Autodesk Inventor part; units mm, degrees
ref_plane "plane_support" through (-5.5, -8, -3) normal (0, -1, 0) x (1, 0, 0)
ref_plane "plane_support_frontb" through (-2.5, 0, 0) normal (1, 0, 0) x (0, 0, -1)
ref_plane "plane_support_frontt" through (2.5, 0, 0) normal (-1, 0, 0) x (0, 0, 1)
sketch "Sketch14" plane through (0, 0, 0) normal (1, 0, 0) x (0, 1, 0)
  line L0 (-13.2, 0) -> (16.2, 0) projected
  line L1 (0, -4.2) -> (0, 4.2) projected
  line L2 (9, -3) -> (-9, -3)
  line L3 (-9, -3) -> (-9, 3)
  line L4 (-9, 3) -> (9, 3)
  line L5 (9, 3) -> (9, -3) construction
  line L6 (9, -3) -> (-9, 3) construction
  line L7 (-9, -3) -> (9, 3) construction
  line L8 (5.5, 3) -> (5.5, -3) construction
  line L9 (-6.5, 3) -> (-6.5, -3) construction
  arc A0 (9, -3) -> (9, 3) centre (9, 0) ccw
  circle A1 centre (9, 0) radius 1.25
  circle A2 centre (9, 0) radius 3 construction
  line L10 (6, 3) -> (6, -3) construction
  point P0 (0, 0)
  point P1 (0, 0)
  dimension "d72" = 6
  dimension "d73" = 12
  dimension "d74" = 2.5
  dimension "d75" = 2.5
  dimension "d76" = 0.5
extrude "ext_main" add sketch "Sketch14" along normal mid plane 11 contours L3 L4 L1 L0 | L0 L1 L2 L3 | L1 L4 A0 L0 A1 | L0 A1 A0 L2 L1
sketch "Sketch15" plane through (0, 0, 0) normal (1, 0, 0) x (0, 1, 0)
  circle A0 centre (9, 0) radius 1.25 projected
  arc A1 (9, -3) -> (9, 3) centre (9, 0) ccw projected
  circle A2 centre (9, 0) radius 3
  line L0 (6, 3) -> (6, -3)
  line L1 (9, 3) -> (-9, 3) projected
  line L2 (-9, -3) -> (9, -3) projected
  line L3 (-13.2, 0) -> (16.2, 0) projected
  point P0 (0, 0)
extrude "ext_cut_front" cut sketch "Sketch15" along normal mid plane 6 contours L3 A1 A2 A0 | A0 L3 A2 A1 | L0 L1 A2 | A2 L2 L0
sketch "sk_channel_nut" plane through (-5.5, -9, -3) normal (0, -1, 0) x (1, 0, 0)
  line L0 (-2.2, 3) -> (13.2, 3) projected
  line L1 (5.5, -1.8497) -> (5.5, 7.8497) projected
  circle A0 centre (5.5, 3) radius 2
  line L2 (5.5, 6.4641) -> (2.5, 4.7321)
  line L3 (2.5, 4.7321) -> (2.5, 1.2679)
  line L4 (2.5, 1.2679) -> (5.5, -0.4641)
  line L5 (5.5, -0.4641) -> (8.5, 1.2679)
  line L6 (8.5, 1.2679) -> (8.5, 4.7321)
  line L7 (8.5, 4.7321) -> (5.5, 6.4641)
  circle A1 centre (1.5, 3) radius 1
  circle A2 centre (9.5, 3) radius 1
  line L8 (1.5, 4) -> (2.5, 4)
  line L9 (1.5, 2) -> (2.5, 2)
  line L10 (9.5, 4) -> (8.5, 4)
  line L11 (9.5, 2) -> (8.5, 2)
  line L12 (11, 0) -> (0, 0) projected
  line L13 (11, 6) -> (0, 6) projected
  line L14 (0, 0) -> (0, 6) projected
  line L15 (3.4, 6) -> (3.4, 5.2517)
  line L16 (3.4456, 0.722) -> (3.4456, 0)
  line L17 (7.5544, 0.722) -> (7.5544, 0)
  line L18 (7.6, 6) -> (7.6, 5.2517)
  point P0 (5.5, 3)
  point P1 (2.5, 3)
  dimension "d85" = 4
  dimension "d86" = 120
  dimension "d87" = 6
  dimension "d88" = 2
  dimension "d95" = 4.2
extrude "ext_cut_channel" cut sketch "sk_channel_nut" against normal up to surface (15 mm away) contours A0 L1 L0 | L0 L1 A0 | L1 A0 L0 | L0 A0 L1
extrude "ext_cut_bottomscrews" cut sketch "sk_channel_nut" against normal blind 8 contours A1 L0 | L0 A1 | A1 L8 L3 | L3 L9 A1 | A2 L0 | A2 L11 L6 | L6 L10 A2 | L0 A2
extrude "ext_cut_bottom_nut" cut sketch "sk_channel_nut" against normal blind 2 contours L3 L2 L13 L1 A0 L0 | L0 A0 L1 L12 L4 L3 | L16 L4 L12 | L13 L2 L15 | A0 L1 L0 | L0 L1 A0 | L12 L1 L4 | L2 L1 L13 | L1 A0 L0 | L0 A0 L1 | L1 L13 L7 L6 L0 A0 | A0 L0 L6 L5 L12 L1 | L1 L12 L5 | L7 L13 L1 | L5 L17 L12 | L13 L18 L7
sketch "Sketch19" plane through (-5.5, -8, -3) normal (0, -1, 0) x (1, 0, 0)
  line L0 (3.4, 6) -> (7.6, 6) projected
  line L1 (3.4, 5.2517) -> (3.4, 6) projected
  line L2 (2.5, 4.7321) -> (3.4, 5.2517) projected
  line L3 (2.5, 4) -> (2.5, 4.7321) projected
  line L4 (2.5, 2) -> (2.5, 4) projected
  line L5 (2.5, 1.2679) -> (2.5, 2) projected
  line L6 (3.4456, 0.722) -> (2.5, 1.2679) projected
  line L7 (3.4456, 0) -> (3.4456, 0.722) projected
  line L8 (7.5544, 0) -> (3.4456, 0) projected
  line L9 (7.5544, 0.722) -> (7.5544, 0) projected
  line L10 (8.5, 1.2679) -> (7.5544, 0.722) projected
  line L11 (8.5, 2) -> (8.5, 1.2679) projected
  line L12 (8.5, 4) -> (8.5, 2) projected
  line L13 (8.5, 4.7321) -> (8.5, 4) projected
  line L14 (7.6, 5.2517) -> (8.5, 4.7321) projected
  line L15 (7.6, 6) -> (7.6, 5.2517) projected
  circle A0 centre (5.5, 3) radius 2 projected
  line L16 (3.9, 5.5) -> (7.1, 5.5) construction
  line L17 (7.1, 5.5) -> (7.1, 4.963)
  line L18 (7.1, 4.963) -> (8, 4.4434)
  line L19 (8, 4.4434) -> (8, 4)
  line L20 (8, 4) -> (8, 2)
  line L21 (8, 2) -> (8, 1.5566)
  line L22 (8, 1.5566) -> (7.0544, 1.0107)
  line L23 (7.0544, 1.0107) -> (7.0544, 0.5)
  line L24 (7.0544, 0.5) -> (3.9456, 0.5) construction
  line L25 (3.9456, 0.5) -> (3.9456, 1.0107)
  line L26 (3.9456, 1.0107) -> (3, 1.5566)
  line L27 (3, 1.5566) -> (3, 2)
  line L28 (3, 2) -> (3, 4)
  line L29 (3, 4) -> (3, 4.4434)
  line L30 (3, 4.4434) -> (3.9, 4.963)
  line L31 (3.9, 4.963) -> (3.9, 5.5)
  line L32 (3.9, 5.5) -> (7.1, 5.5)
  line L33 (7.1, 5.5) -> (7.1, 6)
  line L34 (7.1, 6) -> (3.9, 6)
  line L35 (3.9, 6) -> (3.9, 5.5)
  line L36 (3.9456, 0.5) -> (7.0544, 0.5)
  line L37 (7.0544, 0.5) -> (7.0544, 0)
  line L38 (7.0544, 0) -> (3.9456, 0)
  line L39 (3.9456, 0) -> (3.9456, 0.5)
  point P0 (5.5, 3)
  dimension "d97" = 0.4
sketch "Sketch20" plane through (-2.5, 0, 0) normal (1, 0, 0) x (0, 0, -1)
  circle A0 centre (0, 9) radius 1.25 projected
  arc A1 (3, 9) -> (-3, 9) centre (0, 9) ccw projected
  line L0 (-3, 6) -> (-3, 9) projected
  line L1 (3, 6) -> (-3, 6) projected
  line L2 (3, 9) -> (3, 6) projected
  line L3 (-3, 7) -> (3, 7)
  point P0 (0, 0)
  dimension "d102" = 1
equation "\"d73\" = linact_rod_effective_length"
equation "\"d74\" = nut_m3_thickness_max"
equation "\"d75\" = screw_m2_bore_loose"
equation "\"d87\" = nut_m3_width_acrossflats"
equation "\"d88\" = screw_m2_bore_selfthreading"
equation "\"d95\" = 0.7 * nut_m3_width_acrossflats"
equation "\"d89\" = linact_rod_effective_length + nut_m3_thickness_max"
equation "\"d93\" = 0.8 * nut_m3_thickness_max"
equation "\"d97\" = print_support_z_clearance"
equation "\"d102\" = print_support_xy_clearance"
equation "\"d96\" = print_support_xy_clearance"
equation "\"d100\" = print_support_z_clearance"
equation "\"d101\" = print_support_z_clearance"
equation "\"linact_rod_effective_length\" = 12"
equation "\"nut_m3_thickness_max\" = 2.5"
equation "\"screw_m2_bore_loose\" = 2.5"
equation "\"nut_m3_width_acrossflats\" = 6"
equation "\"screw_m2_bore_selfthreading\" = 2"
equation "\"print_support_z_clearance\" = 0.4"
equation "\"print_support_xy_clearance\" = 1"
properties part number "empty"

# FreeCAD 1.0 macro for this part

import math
import FreeCAD as App
import Part
import Sketcher
Q = App.Units.Quantity


def add_polygon(sketch, points):
    """Adds a closed chain of lines whose ends are joined by coincident constraints."""
    first, n = sketch.GeometryCount, len(points)
    for a, b in zip(points, points[1:] + points[:1]):
        sketch.addGeometry(Part.LineSegment(App.Vector(*a, 0), App.Vector(*b, 0)), False)
    for i in range(n):
        sketch.addConstraint(Sketcher.Constraint("Coincident", first + i, 2, first + (i + 1) % n, 1))

doc = App.newDocument("Part")
body = doc.addObject("PartDesign::Body", "Body")

# Sketch on YZ plane
sketch1 = doc.addObject("Sketcher::SketchObject", "Sketch")
body.addObject(sketch1)
sketch1.AttachmentSupport = (doc.YZ_Plane, [""])
sketch1.MapMode = "FlatFace"
sketch1.addGeometry(Part.LineSegment(App.Vector(-9, 3, 0), App.Vector(-9, -3, 0)), False)
sketch1.addGeometry(Part.LineSegment(App.Vector(-9, -3, 0), App.Vector(9, -3, 0)), False)
sketch1.addGeometry(Part.ArcOfCircle(Part.Circle(App.Vector(9, 0, 0), App.Vector(0, 0, 1), 3), math.radians(-90), math.radians(90)), False)
sketch1.addGeometry(Part.LineSegment(App.Vector(9, 3, 0), App.Vector(-9, 3, 0)), False)
sketch1.addGeometry(Part.Circle(App.Vector(9, 0, 0), App.Vector(0, 0, 1), 1.2), False)
sketch1.addConstraint(Sketcher.Constraint("Coincident", 0, 2, 1, 1))
sketch1.addConstraint(Sketcher.Constraint("Tangent", 1, 2, 2, 1))
sketch1.addConstraint(Sketcher.Constraint("Tangent", 2, 2, 3, 1))
sketch1.addConstraint(Sketcher.Constraint("Coincident", 3, 2, 0, 1))
sketch1.addConstraint(Sketcher.Constraint("Vertical", 0))
sketch1.addConstraint(Sketcher.Constraint("Horizontal", 1))
sketch1.addConstraint(Sketcher.Constraint("Horizontal", 3))
sketch1.addConstraint(Sketcher.Constraint("Coincident", 4, 3, 2, 3))
sketch1.addConstraint(Sketcher.Constraint("Symmetric", 0, 2, 2, 2, -1, 1))
sketch1.addConstraint(Sketcher.Constraint("Radius", 2, 3.0))
sketch1.addConstraint(Sketcher.Constraint("Diameter", 4, 2.5))
sketch1.addConstraint(Sketcher.Constraint("DistanceX", 1, 1, 1, 2, 18.0))
pad1 = doc.addObject("PartDesign::Pad", "Pad")
body.addObject(pad1)
pad1.Profile = sketch1
pad1.Length = 11
pad1.Midplane = True

# Sketch on YZ plane
sketch2 = doc.addObject("Sketcher::SketchObject", "Sketch001")
body.addObject(sketch2)
sketch2.AttachmentSupport = (doc.YZ_Plane, [""])
sketch2.MapMode = "FlatFace"
sketch2.addGeometry(Part.ArcOfCircle(Part.Circle(App.Vector(9, 0, 0), App.Vector(0, 0, 1), 3), math.radians(-90), math.radians(90)), False)
sketch2.addGeometry(Part.LineSegment(App.Vector(9, 3, 0), App.Vector(6, 3, 0)), False)
sketch2.addGeometry(Part.LineSegment(App.Vector(6, 3, 0), App.Vector(6, -3, 0)), False)
sketch2.addGeometry(Part.LineSegment(App.Vector(6, -3, 0), App.Vector(9, -3, 0)), False)
sketch2.addGeometry(Part.Circle(App.Vector(9, 0, 0), App.Vector(0, 0, 1), 1.2), False)
sketch2.addConstraint(Sketcher.Constraint("Tangent", 0, 2, 1, 1))
sketch2.addConstraint(Sketcher.Constraint("Coincident", 1, 2, 2, 1))
sketch2.addConstraint(Sketcher.Constraint("Coincident", 2, 2, 3, 1))
sketch2.addConstraint(Sketcher.Constraint("Tangent", 3, 2, 0, 1))
sketch2.addConstraint(Sketcher.Constraint("Horizontal", 1))
sketch2.addConstraint(Sketcher.Constraint("Vertical", 2))
sketch2.addConstraint(Sketcher.Constraint("Horizontal", 3))
sketch2.addConstraint(Sketcher.Constraint("Coincident", 4, 3, 0, 3))
sketch2.addConstraint(Sketcher.Constraint("PointOnObject", 0, 3, -1))
sketch2.addConstraint(Sketcher.Constraint("Radius", 0, 3.0))
sketch2.addConstraint(Sketcher.Constraint("Diameter", 4, 2.5))
sketch2.addConstraint(Sketcher.Constraint("DistanceX", 1, 2, 1, 1, 3.0))
sketch2.addConstraint(Sketcher.Constraint("DistanceX", -1, 1, 0, 3, 9.0))
pocket1 = doc.addObject("PartDesign::Pocket", "Pocket")
body.addObject(pocket1)
pocket1.Profile = sketch2
pocket1.Length = 6
pocket1.Midplane = True

# Sketch on XZ plane
sketch3 = doc.addObject("Sketcher::SketchObject", "Sketch002")
body.addObject(sketch3)
sketch3.AttachmentSupport = (doc.XZ_Plane, [""])
sketch3.MapMode = "FlatFace"
sketch3.AttachmentOffset = App.Placement(App.Vector(0, 0, 9), App.Rotation())
sketch3.addGeometry(Part.Circle(App.Vector(0, 0, 0), App.Vector(0, 0, 1), 2), False)
sketch3.addConstraint(Sketcher.Constraint("Coincident", 0, 3, -1, 1))
sketch3.addConstraint(Sketcher.Constraint("Diameter", 0, 4.0))
pocket2 = doc.addObject("PartDesign::Pocket", "Pocket001")
body.addObject(pocket2)
pocket2.Profile = sketch3
pocket2.Length = 15

# Sketch on XZ plane
sketch4 = doc.addObject("Sketcher::SketchObject", "Sketch003")
body.addObject(sketch4)
sketch4.AttachmentSupport = (doc.XZ_Plane, [""])
sketch4.MapMode = "FlatFace"
sketch4.AttachmentOffset = App.Placement(App.Vector(0, 0, 9), App.Rotation())
sketch4.addGeometry(Part.ArcOfCircle(Part.Circle(App.Vector(-4, 0, 0), App.Vector(0, 0, 1), 1), math.radians(90), math.radians(270)), False)
sketch4.addGeometry(Part.LineSegment(App.Vector(-4, -1, 0), App.Vector(-3, -1, 0)), False)
sketch4.addGeometry(Part.LineSegment(App.Vector(-3, -1, 0), App.Vector(-3, 1, 0)), False)
sketch4.addGeometry(Part.LineSegment(App.Vector(-3, 1, 0), App.Vector(-4, 1, 0)), False)
sketch4.addGeometry(Part.LineSegment(App.Vector(4, 1, 0), App.Vector(3, 1, 0)), False)
sketch4.addGeometry(Part.LineSegment(App.Vector(3, 1, 0), App.Vector(3, -1, 0)), False)
sketch4.addGeometry(Part.LineSegment(App.Vector(3, -1, 0), App.Vector(4, -1, 0)), False)
sketch4.addGeometry(Part.ArcOfCircle(Part.Circle(App.Vector(4, 0, 0), App.Vector(0, 0, 1), 1), math.radians(-90), math.radians(90)), False)
sketch4.addConstraint(Sketcher.Constraint("Tangent", 0, 2, 1, 1))
sketch4.addConstraint(Sketcher.Constraint("Coincident", 1, 2, 2, 1))
sketch4.addConstraint(Sketcher.Constraint("Coincident", 2, 2, 3, 1))
sketch4.addConstraint(Sketcher.Constraint("Tangent", 3, 2, 0, 1))
sketch4.addConstraint(Sketcher.Constraint("Coincident", 4, 2, 5, 1))
sketch4.addConstraint(Sketcher.Constraint("Coincident", 5, 2, 6, 1))
sketch4.addConstraint(Sketcher.Constraint("Tangent", 6, 2, 7, 1))
sketch4.addConstraint(Sketcher.Constraint("Tangent", 7, 2, 4, 1))
sketch4.addConstraint(Sketcher.Constraint("Horizontal", 1))
sketch4.addConstraint(Sketcher.Constraint("Vertical", 2))
sketch4.addConstraint(Sketcher.Constraint("Horizontal", 3))
sketch4.addConstraint(Sketcher.Constraint("Horizontal", 4))
sketch4.addConstraint(Sketcher.Constraint("Vertical", 5))
sketch4.addConstraint(Sketcher.Constraint("Horizontal", 6))
sketch4.addConstraint(Sketcher.Constraint("Equal", 0, 7))
sketch4.addConstraint(Sketcher.Constraint("Symmetric", 0, 3, 7, 3, -1, 1))
sketch4.addConstraint(Sketcher.Constraint("Symmetric", 2, 2, 4, 2, -2))
sketch4.addConstraint(Sketcher.Constraint("Radius", 0, 1.0))
sketch4.addConstraint(Sketcher.Constraint("DistanceX", 0, 3, -1, 1, 4.0))
sketch4.addConstraint(Sketcher.Constraint("DistanceX", 2, 2, 4, 2, 6.0))
pocket3 = doc.addObject("PartDesign::Pocket", "Pocket002")
body.addObject(pocket3)
pocket3.Profile = sketch4
pocket3.Length = 8

# Sketch on XZ plane
sketch5 = doc.addObject("Sketcher::SketchObject", "Sketch004")
body.addObject(sketch5)
sketch5.AttachmentSupport = (doc.XZ_Plane, [""])
sketch5.MapMode = "FlatFace"
sketch5.AttachmentOffset = App.Placement(App.Vector(0, 0, 9), App.Rotation())
add_polygon(sketch5, [(-3, -1.7), (-2.1, -2.3), (-2.1, -3), (-0.8, -3), (0, -3.5), (0.8, -3), (2.1, -3), (2.1, -2.3), (3, -1.7), (3, 1.7), (2.1, 2.3), (2.1, 3), (0.8, 3), (0, 3.5), (-0.8, 3), (-2.1, 3), (-2.1, 2.3), (-3, 1.7)])  # lines 0-17
sketch5.addConstraint(Sketcher.Constraint("Vertical", 1))
sketch5.addConstraint(Sketcher.Constraint("Horizontal", 2))
sketch5.addConstraint(Sketcher.Constraint("Horizontal", 5))
sketch5.addConstraint(Sketcher.Constraint("Vertical", 6))
sketch5.addConstraint(Sketcher.Constraint("Vertical", 8))
sketch5.addConstraint(Sketcher.Constraint("Vertical", 10))
sketch5.addConstraint(Sketcher.Constraint("Horizontal", 11))
sketch5.addConstraint(Sketcher.Constraint("Horizontal", 14))
sketch5.addConstraint(Sketcher.Constraint("Vertical", 15))
sketch5.addConstraint(Sketcher.Constraint("Vertical", 17))
sketch5.addConstraint(Sketcher.Constraint("Symmetric", 2, 2, 11, 2, -1, 1))
sketch5.addConstraint(Sketcher.Constraint("Symmetric", 3, 2, 12, 2, -1, 1))
sketch5.addConstraint(Sketcher.Constraint("Symmetric", 4, 2, 13, 2, -1, 1))
sketch5.addConstraint(Sketcher.Constraint("Symmetric", 7, 2, 16, 2, -1, 1))
sketch5.addConstraint(Sketcher.Constraint("Symmetric", 2, 2, 4, 2, -2))
sketch5.addConstraint(Sketcher.Constraint("Symmetric", 0, 2, 6, 2, -2))
sketch5.addConstraint(Sketcher.Constraint("Symmetric", 9, 2, 15, 2, -2))
sketch5.addConstraint(Sketcher.Constraint("PointOnObject", 3, 2, -2))
sketch5.addConstraint(Sketcher.Constraint("Parallel", 0, 3))
sketch5.addConstraint(Sketcher.Constraint("Parallel", 4, 7))
sketch5.addConstraint(Sketcher.Constraint("Parallel", 3, 9))
sketch5.addConstraint(Sketcher.Constraint("Parallel", 13, 16))
sketch5.addConstraint(Sketcher.Constraint("DistanceY", 5, 2, 10, 2, 6.0))
sketch5.addConstraint(Sketcher.Constraint("DistanceX", 14, 2, 10, 2, 4.2))
sketch5.addConstraint(Sketcher.Constraint("Angle", 0, Q("-29.9993 deg")))
sketch5.addConstraint(Sketcher.Constraint("DistanceX", -1, 1, 7, 2, 3.0))
sketch5.addConstraint(Sketcher.Constraint("DistanceY", 1, 2, 1, 1, 0.722))
sketch5.addConstraint(Sketcher.Constraint("DistanceY", 6, 2, 8, 2, 4.01))
sketch5.addConstraint(Sketcher.Constraint("DistanceX", 2, 1, 2, 2, 1.2505))
pocket4 = doc.addObject("PartDesign::Pocket", "Pocket003")
body.addObject(pocket4)
pocket4.Profile = sketch5
pocket4.Length = 2

doc.recompute()
